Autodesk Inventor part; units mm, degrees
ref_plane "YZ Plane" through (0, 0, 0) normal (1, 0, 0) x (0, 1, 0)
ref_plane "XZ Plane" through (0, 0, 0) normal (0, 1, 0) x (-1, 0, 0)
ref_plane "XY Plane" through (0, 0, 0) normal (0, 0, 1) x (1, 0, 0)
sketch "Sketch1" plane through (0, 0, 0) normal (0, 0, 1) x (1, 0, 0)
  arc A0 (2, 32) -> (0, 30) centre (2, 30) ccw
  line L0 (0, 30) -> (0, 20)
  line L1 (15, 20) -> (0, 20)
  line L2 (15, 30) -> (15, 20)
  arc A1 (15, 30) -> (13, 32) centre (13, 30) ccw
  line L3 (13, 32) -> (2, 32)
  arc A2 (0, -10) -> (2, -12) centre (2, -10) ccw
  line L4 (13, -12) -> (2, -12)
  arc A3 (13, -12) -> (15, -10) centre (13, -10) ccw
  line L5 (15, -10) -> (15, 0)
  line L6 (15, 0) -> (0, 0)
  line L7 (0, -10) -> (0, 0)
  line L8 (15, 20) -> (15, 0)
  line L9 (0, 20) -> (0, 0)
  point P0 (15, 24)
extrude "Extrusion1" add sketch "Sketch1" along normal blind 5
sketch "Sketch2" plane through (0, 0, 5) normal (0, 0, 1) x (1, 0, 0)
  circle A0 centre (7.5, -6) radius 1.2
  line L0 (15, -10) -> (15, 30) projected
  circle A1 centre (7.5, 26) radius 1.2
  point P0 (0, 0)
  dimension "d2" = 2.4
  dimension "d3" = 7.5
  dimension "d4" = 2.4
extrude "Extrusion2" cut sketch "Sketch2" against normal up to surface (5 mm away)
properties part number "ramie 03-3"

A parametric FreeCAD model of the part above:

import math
import FreeCAD as App
import Part
import Sketcher
from FreeCAD import Vector
Q = App.Units.Quantity

doc = App.newDocument("Part")
params = doc.addObject("Spreadsheet::Sheet", "Params")
for row, (alias, value) in enumerate([
    ("sketch1_radius", "2 mm"),
    ("sketch1_width", "11 mm"),
    ("sketch1_height", "40 mm"),
    ("pad1_length", "5 mm"),
    ("sketch2_diameter", "2.4 mm"),
    ("pocket1_length", "5 mm"),
], start=1):
    params.set(f"A{row}", alias)
    params.set(f"B{row}", "=" + value)
    params.setAlias(f"B{row}", alias)

body = doc.addObject("PartDesign::Body", "Body")

sketch1 = body.newObject("Sketcher::SketchObject", "Sketch")
sketch1.AttachmentSupport = (doc.getObject("XY_Plane"), [""])
sketch1.MapMode = "FlatFace"
sketch1.addGeometry([
    Part.LineSegment(Vector(13, 32, 0), Vector(2, 32, 0)),
    Part.ArcOfCircle(Part.Circle(Vector(2, 30, 0), Vector(0, 0, 1), 2), math.radians(90), math.radians(180)),
    Part.LineSegment(Vector(0, 30, 0), Vector(0, -10, 0)),
    Part.ArcOfCircle(Part.Circle(Vector(2, -10, 0), Vector(0, 0, 1), 2), math.radians(180), math.radians(270)),
    Part.LineSegment(Vector(2, -12, 0), Vector(13, -12, 0)),
    Part.ArcOfCircle(Part.Circle(Vector(13, -10, 0), Vector(0, 0, 1), 2), math.radians(-90), math.radians(0)),
    Part.LineSegment(Vector(15, -10, 0), Vector(15, 30, 0)),
    Part.ArcOfCircle(Part.Circle(Vector(13, 30, 0), Vector(0, 0, 1), 2), math.radians(0), math.radians(90)),
], False)
sketch1.addConstraint([
    Sketcher.Constraint("Tangent", 0, 2, 1, 1),
    Sketcher.Constraint("Tangent", 1, 2, 2, 1),
    Sketcher.Constraint("Tangent", 2, 2, 3, 1),
    Sketcher.Constraint("Tangent", 3, 2, 4, 1),
    Sketcher.Constraint("Tangent", 4, 2, 5, 1),
    Sketcher.Constraint("Tangent", 5, 2, 6, 1),
    Sketcher.Constraint("Tangent", 6, 2, 7, 1),
    Sketcher.Constraint("Tangent", 7, 2, 0, 1),
    Sketcher.Constraint("Horizontal", 0),
    Sketcher.Constraint("Vertical", 2),
    Sketcher.Constraint("Horizontal", 4),
    Sketcher.Constraint("Vertical", 6),
    Sketcher.Constraint("Equal", 1, 3),
    Sketcher.Constraint("Equal", 3, 5),
    Sketcher.Constraint("Equal", 5, 7),
    Sketcher.Constraint("PointOnObject", 1, 2, -2),
    Sketcher.Constraint("Radius", 1, Q("2 mm")),
    Sketcher.Constraint("DistanceX", 0, 2, 0, 1, Q("11 mm")),
    Sketcher.Constraint("DistanceY", 2, 2, 2, 1, Q("40 mm")),
    Sketcher.Constraint("DistanceY", -1, 1, 1, 3, Q("30 mm")),
])
sketch1.setExpression("Constraints[16]", "Params.sketch1_radius")
sketch1.setExpression("Constraints[17]", "Params.sketch1_width")
sketch1.setExpression("Constraints[18]", "Params.sketch1_height")
pad1 = body.newObject("PartDesign::Pad", "Pad")
pad1.Profile = sketch1
pad1.setExpression("Length", "Params.pad1_length")

sketch2 = body.newObject("Sketcher::SketchObject", "Sketch001")
sketch2.AttachmentSupport = (doc.getObject("XY_Plane"), [""])
sketch2.MapMode = "FlatFace"
sketch2.AttachmentOffset = App.Placement(Vector(0, 0, 5), App.Rotation())
sketch2.addGeometry([
    Part.Circle(Vector(7.5, -6, 0), Vector(0, 0, 1), 1.2),
    Part.Circle(Vector(7.5, 26, 0), Vector(0, 0, 1), 1.2),
], False)
sketch2.addConstraint([
    Sketcher.Constraint("Equal", 0, 1),
    Sketcher.Constraint("Vertical", 0, 3, 1, 3),
    Sketcher.Constraint("Diameter", 0, Q("2.4 mm")),
    Sketcher.Constraint("DistanceX", -1, 1, 0, 3, Q("7.5 mm")),
    Sketcher.Constraint("DistanceY", 0, 3, -1, 1, Q("6 mm")),
    Sketcher.Constraint("DistanceY", -1, 1, 1, 3, Q("26 mm")),
])
sketch2.setExpression("Constraints[2]", "Params.sketch2_diameter")
pocket1 = body.newObject("PartDesign::Pocket", "Pocket")
pocket1.Profile = sketch2
pocket1.setExpression("Length", "Params.pocket1_length")

doc.recompute()
